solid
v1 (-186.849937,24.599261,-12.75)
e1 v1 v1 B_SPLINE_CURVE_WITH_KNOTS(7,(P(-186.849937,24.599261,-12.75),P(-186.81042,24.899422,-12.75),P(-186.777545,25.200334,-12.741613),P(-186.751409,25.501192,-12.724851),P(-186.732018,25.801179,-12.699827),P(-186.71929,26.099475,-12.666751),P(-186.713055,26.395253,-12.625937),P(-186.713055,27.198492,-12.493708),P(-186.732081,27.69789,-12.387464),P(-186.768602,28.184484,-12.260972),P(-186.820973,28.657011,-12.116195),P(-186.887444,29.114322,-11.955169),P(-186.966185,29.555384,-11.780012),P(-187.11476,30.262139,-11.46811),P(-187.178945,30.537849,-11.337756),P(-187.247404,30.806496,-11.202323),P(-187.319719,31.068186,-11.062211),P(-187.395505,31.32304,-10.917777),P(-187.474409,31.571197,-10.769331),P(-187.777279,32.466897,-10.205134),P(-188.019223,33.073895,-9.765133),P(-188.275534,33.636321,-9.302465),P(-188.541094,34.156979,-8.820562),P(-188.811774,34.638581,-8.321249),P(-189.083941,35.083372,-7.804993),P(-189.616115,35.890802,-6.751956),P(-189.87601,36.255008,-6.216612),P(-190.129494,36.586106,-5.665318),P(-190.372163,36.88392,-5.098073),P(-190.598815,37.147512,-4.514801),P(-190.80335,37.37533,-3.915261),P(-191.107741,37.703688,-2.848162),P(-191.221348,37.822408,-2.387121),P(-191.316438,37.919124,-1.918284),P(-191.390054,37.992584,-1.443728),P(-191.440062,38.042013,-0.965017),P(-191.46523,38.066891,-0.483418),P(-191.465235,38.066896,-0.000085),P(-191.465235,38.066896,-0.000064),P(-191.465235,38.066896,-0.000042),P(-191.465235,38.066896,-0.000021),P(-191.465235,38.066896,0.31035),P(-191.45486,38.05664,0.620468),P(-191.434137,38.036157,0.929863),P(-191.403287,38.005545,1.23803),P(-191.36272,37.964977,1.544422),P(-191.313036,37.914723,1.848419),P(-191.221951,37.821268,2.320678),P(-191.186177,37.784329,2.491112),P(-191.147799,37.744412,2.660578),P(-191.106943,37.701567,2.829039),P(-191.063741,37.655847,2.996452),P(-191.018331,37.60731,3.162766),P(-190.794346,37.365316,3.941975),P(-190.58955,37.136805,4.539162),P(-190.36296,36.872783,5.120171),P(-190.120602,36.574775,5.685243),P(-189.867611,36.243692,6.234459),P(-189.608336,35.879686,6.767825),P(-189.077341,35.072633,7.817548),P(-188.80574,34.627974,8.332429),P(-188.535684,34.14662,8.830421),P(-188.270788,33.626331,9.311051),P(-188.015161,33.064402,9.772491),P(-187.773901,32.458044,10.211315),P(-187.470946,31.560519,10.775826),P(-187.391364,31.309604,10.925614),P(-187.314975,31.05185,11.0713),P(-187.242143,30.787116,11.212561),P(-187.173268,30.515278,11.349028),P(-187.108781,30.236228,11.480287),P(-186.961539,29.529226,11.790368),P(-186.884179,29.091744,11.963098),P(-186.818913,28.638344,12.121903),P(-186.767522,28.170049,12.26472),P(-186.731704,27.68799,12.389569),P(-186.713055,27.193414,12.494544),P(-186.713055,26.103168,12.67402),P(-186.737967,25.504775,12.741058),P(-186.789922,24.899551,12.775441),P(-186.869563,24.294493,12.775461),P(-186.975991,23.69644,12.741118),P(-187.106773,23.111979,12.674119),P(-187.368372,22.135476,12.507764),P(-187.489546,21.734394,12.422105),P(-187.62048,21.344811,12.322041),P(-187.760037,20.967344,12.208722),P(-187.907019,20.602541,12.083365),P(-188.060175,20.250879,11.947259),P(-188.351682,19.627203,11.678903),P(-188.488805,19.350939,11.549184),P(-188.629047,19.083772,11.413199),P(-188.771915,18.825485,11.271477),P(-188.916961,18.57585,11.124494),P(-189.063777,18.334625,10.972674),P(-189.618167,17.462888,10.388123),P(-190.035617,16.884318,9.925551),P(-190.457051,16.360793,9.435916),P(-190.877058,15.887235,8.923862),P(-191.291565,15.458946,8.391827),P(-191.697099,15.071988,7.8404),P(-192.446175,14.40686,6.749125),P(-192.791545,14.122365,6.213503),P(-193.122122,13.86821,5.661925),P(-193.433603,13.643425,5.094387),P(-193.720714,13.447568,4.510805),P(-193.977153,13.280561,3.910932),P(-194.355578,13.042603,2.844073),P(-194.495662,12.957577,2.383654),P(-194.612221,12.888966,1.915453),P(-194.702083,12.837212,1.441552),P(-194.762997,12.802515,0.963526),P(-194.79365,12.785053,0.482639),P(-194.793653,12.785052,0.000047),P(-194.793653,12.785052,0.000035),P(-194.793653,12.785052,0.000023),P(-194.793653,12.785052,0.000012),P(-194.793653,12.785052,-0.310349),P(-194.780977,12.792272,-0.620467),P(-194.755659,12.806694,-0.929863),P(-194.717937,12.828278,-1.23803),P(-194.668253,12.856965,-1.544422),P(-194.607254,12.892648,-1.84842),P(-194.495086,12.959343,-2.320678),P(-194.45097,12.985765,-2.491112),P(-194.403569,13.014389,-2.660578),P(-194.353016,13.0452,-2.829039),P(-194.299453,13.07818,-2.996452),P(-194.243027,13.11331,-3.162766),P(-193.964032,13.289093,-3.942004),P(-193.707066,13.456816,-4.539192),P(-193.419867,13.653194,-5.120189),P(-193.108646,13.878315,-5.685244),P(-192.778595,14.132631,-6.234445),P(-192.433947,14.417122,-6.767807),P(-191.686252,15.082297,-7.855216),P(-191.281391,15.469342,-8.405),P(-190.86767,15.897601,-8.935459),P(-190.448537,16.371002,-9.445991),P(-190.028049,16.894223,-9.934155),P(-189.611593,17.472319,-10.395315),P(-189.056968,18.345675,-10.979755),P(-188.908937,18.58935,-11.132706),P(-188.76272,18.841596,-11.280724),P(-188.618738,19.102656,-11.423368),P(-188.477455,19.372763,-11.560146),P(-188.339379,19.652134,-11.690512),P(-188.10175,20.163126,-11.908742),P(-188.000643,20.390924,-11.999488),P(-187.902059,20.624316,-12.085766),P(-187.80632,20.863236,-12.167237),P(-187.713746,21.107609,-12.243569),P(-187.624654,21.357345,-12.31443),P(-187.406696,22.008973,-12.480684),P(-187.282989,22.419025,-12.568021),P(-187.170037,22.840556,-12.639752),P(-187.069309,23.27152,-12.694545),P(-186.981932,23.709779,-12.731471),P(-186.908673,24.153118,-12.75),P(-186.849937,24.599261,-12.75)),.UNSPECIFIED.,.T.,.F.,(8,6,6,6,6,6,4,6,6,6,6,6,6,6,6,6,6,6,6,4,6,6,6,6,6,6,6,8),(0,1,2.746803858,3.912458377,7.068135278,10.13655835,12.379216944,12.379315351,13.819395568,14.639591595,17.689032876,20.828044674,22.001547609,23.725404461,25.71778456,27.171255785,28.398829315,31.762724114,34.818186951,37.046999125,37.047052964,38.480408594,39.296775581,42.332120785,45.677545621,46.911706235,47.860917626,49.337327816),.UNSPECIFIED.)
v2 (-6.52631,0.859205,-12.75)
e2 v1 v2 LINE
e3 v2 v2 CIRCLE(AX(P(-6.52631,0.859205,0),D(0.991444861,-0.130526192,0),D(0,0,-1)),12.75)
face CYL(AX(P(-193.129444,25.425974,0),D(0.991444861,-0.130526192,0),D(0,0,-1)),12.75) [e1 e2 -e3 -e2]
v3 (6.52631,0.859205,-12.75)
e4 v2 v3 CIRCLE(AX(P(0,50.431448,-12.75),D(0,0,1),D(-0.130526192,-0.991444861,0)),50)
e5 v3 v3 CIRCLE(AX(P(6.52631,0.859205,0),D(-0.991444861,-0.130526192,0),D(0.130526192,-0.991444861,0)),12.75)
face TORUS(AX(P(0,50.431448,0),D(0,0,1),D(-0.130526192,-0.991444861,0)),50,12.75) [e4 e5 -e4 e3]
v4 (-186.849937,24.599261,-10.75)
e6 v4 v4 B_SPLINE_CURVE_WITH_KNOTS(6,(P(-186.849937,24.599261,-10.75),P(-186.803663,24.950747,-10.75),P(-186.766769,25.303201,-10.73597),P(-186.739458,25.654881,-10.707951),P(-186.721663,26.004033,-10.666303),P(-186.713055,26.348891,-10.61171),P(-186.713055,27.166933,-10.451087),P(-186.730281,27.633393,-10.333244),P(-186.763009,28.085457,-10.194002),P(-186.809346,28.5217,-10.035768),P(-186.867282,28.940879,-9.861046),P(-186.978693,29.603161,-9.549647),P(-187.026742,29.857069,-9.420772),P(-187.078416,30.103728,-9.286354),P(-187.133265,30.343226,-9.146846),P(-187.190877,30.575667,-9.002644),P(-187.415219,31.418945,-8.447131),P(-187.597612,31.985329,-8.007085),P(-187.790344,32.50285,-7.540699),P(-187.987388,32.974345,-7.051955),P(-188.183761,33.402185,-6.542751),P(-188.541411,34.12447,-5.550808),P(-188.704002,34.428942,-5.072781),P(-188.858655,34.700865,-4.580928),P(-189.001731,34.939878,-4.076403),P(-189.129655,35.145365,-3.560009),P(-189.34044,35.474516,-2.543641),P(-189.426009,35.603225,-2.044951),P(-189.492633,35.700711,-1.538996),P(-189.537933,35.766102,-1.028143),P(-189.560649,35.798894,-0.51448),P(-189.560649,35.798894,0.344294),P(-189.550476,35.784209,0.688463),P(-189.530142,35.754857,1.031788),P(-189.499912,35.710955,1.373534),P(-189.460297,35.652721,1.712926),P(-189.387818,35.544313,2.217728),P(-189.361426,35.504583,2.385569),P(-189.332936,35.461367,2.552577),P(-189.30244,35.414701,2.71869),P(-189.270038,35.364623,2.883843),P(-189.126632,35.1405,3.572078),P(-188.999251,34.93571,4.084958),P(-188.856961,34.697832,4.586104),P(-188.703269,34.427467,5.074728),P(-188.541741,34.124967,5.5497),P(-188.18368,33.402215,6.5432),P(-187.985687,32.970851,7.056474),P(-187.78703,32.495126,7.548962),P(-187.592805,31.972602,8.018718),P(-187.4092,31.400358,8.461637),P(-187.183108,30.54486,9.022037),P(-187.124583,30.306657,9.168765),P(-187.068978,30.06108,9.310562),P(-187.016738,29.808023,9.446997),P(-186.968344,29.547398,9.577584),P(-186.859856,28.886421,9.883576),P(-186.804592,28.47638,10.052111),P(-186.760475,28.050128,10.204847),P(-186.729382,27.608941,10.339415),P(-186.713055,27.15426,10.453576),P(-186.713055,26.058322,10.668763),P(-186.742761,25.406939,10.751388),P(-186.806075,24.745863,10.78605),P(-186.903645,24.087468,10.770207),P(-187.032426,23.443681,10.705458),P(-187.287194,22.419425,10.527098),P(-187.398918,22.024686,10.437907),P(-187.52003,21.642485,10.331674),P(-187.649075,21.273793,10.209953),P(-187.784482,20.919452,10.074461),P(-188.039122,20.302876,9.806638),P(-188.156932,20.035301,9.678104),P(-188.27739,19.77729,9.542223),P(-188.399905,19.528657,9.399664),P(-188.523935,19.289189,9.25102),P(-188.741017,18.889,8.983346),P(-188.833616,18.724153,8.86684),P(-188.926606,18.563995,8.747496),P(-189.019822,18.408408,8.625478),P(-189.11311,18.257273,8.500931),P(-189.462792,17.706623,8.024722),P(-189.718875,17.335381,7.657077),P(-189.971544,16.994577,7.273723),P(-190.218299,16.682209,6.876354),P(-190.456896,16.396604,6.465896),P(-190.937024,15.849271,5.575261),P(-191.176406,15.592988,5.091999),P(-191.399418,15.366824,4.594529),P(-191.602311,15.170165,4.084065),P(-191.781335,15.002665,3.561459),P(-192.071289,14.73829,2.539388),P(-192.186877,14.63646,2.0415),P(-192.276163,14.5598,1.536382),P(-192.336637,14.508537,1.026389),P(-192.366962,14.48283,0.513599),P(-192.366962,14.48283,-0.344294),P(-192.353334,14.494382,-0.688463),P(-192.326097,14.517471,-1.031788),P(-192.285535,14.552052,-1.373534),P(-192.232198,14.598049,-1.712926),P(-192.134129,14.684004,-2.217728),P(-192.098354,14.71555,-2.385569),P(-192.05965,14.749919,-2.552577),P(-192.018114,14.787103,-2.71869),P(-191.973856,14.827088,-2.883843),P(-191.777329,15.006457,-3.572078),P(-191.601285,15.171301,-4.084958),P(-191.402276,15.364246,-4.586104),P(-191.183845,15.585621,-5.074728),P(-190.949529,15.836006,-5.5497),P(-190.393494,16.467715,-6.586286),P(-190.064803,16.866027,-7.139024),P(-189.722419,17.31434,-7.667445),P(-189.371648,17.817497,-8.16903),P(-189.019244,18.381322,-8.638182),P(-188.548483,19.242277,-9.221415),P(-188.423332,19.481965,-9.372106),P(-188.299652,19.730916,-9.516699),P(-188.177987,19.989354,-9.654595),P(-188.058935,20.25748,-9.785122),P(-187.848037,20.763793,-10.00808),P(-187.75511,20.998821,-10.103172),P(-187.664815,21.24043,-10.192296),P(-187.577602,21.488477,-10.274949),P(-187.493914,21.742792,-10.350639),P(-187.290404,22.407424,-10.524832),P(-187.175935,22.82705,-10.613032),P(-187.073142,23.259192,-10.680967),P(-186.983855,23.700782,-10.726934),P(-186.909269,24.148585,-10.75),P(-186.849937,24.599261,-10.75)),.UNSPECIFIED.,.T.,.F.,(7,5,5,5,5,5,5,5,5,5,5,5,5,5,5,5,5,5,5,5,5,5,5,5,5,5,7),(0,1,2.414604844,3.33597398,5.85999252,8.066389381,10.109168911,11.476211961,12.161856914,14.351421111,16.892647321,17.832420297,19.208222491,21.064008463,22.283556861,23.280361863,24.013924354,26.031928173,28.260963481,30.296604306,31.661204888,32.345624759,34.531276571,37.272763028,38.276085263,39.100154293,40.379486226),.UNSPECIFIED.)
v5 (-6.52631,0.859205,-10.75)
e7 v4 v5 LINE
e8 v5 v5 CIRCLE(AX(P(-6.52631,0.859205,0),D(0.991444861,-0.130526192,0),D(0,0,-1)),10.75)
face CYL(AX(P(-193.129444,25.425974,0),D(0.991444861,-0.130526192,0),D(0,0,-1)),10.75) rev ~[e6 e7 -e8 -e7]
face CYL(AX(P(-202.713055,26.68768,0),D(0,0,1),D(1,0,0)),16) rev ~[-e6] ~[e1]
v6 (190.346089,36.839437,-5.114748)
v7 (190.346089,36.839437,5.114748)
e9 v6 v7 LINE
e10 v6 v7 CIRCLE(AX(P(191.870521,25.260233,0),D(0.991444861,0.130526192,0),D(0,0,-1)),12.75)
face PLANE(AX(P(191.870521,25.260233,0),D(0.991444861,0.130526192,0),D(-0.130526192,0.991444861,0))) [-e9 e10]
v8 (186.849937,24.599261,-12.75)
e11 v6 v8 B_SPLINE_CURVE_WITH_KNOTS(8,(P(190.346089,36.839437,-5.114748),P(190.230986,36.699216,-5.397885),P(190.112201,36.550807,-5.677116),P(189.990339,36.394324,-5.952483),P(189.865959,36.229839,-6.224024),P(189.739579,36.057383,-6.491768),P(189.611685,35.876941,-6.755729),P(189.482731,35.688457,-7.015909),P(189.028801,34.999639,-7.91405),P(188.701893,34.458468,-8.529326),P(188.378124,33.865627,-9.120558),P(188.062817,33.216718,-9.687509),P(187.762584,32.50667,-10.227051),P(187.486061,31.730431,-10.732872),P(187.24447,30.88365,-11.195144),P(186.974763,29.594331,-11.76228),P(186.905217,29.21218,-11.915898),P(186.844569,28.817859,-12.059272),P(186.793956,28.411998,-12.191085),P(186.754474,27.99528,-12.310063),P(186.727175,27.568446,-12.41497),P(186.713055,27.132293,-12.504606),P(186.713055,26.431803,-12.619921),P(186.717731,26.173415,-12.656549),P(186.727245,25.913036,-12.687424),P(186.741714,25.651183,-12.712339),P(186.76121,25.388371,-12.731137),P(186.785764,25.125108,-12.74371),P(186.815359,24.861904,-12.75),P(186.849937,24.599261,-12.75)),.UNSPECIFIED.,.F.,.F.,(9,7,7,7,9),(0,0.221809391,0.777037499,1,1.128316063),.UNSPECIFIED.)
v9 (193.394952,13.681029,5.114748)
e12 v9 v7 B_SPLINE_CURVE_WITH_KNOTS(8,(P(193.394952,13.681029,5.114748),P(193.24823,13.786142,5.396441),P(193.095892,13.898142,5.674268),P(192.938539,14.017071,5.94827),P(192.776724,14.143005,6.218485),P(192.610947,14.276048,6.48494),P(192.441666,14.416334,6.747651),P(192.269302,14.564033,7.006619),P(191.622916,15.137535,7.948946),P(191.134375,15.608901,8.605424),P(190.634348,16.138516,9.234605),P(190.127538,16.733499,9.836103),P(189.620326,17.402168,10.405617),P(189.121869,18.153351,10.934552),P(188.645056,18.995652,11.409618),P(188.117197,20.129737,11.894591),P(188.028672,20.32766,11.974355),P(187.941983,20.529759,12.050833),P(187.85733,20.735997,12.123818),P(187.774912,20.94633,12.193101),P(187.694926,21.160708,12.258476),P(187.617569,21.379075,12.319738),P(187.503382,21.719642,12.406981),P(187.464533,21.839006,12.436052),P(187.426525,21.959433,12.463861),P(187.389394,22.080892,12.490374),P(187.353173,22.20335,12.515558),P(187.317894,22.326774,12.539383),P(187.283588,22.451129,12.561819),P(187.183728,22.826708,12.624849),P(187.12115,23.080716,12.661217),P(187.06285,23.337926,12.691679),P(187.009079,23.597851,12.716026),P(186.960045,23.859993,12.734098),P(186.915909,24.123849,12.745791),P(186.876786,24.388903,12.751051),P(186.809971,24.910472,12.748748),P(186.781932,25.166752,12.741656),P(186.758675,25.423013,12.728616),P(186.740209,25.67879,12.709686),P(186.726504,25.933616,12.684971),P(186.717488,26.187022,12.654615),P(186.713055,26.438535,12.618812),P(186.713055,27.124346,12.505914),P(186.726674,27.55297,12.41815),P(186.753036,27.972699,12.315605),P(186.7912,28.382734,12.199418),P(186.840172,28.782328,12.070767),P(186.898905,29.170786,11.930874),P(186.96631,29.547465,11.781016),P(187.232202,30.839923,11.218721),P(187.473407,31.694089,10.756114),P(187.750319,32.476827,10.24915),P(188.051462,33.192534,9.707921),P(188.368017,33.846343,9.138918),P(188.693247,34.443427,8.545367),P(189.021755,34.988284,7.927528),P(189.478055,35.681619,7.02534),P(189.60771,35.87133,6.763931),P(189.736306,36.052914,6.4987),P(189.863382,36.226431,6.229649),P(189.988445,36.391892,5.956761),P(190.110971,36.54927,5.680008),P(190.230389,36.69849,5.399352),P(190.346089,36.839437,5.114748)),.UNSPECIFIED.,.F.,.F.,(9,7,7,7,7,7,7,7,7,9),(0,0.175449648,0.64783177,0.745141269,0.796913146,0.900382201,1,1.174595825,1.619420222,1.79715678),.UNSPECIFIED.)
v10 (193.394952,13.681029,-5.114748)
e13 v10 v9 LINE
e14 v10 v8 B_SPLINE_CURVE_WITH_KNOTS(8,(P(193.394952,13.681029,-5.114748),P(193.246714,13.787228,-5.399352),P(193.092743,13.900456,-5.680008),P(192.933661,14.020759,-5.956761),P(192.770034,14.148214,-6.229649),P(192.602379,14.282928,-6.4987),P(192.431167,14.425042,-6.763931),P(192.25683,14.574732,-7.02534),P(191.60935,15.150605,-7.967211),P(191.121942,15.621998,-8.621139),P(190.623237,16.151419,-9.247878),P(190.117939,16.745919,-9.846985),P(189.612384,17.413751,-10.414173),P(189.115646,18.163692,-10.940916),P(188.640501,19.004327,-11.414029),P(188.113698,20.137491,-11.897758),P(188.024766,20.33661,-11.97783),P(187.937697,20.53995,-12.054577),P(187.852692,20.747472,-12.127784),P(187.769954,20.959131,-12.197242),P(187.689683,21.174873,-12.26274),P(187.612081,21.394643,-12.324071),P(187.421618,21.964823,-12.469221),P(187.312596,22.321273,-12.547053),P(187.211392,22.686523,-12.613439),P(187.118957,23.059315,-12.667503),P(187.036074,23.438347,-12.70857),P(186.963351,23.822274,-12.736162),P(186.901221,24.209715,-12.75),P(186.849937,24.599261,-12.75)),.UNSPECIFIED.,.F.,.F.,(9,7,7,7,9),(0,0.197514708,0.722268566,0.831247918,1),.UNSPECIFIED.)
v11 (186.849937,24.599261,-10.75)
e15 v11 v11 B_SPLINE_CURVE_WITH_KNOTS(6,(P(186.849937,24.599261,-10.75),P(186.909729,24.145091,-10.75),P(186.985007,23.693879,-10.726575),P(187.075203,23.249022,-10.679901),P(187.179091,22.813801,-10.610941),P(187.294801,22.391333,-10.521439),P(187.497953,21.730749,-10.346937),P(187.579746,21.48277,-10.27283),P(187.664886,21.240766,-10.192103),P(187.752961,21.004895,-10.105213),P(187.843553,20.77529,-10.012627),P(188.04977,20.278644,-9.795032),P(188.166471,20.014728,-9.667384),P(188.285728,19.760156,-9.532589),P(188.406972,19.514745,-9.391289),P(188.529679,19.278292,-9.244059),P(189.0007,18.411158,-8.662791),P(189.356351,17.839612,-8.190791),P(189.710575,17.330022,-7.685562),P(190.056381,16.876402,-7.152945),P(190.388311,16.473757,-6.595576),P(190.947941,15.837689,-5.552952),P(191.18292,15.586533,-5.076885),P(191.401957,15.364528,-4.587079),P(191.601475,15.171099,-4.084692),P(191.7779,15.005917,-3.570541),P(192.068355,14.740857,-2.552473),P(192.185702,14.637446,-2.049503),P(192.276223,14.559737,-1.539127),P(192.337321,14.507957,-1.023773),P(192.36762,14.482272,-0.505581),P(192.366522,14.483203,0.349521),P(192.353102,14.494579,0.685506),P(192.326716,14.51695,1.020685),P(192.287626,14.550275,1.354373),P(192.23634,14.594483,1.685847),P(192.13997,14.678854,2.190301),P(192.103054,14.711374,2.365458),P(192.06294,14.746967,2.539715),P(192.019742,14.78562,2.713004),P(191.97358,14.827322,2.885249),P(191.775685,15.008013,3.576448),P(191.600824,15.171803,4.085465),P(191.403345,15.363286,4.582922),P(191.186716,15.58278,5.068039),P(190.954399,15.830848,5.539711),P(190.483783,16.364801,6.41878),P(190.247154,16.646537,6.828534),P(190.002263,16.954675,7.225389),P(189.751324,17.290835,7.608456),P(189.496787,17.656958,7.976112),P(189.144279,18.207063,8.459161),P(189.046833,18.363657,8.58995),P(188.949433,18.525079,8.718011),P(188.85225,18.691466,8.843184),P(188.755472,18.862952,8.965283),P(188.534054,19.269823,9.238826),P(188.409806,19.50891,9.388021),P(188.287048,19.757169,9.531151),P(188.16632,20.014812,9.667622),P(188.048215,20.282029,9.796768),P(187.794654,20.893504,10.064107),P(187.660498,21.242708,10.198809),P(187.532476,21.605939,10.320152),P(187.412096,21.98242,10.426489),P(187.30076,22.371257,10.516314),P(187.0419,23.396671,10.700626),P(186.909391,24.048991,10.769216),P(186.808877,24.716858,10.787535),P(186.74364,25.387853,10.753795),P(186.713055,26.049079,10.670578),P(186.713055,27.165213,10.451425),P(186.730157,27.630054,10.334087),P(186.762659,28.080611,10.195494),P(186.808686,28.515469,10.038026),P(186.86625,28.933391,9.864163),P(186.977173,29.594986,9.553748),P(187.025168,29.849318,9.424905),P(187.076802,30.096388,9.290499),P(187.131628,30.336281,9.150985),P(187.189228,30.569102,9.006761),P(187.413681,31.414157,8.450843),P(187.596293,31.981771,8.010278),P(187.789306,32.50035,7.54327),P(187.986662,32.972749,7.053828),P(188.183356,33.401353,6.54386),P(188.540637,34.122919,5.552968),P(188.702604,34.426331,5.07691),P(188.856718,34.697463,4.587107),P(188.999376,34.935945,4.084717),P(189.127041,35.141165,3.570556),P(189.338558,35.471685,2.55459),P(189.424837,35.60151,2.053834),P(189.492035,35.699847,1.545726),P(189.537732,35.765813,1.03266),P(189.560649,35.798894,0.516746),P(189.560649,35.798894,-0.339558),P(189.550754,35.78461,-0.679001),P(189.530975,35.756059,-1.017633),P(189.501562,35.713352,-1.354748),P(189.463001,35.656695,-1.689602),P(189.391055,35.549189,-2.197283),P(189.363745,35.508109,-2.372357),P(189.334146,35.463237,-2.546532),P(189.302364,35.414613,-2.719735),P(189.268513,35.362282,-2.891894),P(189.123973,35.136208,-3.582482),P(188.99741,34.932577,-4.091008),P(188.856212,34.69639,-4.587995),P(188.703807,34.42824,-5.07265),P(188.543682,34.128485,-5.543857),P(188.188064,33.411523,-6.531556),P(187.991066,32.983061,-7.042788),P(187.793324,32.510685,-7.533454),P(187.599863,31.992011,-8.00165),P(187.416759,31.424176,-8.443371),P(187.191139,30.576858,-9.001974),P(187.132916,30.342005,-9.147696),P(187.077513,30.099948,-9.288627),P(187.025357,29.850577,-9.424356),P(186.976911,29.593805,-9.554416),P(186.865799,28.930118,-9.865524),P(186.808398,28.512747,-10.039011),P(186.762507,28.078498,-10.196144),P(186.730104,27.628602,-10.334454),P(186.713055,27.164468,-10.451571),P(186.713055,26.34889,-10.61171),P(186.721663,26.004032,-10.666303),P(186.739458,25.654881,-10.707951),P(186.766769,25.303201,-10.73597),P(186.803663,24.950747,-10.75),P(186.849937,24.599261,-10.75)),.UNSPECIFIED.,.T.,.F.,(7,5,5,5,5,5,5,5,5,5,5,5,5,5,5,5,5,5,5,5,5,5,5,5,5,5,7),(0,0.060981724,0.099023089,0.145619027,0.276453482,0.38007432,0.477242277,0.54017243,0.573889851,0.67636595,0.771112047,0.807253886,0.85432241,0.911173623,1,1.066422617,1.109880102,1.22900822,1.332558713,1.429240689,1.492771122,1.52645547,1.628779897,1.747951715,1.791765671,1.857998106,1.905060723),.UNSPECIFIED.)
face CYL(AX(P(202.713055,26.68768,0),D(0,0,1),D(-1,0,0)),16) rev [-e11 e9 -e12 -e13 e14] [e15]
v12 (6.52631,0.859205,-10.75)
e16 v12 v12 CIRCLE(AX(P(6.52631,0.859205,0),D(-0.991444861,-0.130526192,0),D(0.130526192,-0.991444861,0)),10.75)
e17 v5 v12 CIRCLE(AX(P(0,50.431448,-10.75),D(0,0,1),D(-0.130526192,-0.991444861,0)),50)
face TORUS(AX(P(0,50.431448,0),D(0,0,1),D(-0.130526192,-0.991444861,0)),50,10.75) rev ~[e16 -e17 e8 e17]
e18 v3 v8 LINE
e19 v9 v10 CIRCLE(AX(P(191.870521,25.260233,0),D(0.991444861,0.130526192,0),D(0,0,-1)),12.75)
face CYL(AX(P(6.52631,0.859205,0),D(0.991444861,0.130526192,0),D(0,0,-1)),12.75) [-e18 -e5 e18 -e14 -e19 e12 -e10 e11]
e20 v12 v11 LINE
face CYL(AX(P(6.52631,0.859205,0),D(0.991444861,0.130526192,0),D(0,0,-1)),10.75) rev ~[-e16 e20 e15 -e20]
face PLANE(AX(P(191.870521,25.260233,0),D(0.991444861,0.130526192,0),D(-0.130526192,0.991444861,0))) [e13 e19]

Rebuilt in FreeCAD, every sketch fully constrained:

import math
import FreeCAD as App
import Part
import Sketcher
from FreeCAD import Vector
Q = App.Units.Quantity

doc = App.newDocument("Part")
body = doc.addObject("PartDesign::Body", "Body")

# Sketch on an angled plane
sketch1 = body.newObject("Sketcher::SketchObject", "Sketch")
sketch1.Placement = App.Placement(Vector(191.870521, 25.260233, 0), App.Rotation(Vector(0, 0, -1), Vector(-0.130526192, 0.991444861, 0), Vector(0.991444861, 0.130526192, 0), "ZXY"))
sketch1.addGeometry([
    Part.Circle(Vector(0, 0, 0), Vector(0, 0, 1), 13),
    Part.Circle(Vector(0, 0, 0), Vector(0, 0, 1), 11),
], False)
sketch1.addConstraint([
    Sketcher.Constraint("Coincident", 0, 3, -1, 1),
    Sketcher.Constraint("Coincident", 1, 3, -1, 1),
    Sketcher.Constraint("Diameter", 0, Q("25.5 mm")),
    Sketcher.Constraint("Diameter", 1, Q("21.5 mm")),
])

# Sketch on XY plane
sketch2 = body.newObject("Sketcher::SketchObject", "Sketch001")
sketch2.AttachmentSupport = (doc.getObject("XY_Plane"), [""])
sketch2.MapMode = "FlatFace"
sketch2.addGeometry([
    Part.LineSegment(Vector(-193, 25, 0), Vector(-7, 1, 0)),
    Part.ArcOfCircle(Part.Circle(Vector(0, 50, 0), Vector(0, 0, 1), 50), math.radians(-97.5), math.radians(-82.5)),
    Part.LineSegment(Vector(7, 1, 0), Vector(192, 25, 0)),
], False)
sketch2.addConstraint([
    Sketcher.Constraint("Tangent", 0, 2, 1, 1),
    Sketcher.Constraint("Tangent", 1, 2, 2, 1),
    Sketcher.Constraint("Symmetric", 0, 2, 1, 2, -2),
    Sketcher.Constraint("Radius", 1, Q("50 mm")),
    Sketcher.Constraint("Angle", 0, Q("-7.5 deg")),
    Sketcher.Constraint("Distance", 2, Q("186.943539 mm")),
    Sketcher.Constraint("DistanceY", -1, 1, 1, 3, Q("50.431448 mm")),
    Sketcher.Constraint("DistanceY", 0, 2, 0, 1, Q("24.566769 mm")),
])
doc.recompute()

additivepipe = body.newObject("PartDesign::AdditivePipe", "AdditivePipe")
additivepipe.Profile = sketch1
additivepipe.Spine = (sketch2, ["Edge1", "Edge2", "Edge3"])

# Sketch on XY plane
sketch3 = body.newObject("Sketcher::SketchObject", "Sketch002")
sketch3.AttachmentSupport = (doc.getObject("XY_Plane"), [""])
sketch3.MapMode = "FlatFace"
sketch3.addGeometry(Part.Circle(Vector(-203, 27, 0), Vector(0, 0, 1), 16), False)
sketch3.addConstraint([
    Sketcher.Constraint("Diameter", 0, Q("32 mm")),
    Sketcher.Constraint("DistanceY", -1, 1, 0, 3, Q("26.68768 mm")),
    Sketcher.Constraint("DistanceX", 0, 3, -1, 1, Q("202.713055 mm")),
])
pocket1 = body.newObject("PartDesign::Pocket", "Pocket")
pocket1.Profile = sketch3
pocket1.Length = 70
pocket1.Midplane = True
doc.recompute()

mirrored = body.newObject("PartDesign::Mirrored", "Mirrored")
mirrored.Originals = [pocket1]
mirrored.MirrorPlane = (doc.getObject("YZ_Plane"), [""])
body.Tip = mirrored

doc.recompute()
